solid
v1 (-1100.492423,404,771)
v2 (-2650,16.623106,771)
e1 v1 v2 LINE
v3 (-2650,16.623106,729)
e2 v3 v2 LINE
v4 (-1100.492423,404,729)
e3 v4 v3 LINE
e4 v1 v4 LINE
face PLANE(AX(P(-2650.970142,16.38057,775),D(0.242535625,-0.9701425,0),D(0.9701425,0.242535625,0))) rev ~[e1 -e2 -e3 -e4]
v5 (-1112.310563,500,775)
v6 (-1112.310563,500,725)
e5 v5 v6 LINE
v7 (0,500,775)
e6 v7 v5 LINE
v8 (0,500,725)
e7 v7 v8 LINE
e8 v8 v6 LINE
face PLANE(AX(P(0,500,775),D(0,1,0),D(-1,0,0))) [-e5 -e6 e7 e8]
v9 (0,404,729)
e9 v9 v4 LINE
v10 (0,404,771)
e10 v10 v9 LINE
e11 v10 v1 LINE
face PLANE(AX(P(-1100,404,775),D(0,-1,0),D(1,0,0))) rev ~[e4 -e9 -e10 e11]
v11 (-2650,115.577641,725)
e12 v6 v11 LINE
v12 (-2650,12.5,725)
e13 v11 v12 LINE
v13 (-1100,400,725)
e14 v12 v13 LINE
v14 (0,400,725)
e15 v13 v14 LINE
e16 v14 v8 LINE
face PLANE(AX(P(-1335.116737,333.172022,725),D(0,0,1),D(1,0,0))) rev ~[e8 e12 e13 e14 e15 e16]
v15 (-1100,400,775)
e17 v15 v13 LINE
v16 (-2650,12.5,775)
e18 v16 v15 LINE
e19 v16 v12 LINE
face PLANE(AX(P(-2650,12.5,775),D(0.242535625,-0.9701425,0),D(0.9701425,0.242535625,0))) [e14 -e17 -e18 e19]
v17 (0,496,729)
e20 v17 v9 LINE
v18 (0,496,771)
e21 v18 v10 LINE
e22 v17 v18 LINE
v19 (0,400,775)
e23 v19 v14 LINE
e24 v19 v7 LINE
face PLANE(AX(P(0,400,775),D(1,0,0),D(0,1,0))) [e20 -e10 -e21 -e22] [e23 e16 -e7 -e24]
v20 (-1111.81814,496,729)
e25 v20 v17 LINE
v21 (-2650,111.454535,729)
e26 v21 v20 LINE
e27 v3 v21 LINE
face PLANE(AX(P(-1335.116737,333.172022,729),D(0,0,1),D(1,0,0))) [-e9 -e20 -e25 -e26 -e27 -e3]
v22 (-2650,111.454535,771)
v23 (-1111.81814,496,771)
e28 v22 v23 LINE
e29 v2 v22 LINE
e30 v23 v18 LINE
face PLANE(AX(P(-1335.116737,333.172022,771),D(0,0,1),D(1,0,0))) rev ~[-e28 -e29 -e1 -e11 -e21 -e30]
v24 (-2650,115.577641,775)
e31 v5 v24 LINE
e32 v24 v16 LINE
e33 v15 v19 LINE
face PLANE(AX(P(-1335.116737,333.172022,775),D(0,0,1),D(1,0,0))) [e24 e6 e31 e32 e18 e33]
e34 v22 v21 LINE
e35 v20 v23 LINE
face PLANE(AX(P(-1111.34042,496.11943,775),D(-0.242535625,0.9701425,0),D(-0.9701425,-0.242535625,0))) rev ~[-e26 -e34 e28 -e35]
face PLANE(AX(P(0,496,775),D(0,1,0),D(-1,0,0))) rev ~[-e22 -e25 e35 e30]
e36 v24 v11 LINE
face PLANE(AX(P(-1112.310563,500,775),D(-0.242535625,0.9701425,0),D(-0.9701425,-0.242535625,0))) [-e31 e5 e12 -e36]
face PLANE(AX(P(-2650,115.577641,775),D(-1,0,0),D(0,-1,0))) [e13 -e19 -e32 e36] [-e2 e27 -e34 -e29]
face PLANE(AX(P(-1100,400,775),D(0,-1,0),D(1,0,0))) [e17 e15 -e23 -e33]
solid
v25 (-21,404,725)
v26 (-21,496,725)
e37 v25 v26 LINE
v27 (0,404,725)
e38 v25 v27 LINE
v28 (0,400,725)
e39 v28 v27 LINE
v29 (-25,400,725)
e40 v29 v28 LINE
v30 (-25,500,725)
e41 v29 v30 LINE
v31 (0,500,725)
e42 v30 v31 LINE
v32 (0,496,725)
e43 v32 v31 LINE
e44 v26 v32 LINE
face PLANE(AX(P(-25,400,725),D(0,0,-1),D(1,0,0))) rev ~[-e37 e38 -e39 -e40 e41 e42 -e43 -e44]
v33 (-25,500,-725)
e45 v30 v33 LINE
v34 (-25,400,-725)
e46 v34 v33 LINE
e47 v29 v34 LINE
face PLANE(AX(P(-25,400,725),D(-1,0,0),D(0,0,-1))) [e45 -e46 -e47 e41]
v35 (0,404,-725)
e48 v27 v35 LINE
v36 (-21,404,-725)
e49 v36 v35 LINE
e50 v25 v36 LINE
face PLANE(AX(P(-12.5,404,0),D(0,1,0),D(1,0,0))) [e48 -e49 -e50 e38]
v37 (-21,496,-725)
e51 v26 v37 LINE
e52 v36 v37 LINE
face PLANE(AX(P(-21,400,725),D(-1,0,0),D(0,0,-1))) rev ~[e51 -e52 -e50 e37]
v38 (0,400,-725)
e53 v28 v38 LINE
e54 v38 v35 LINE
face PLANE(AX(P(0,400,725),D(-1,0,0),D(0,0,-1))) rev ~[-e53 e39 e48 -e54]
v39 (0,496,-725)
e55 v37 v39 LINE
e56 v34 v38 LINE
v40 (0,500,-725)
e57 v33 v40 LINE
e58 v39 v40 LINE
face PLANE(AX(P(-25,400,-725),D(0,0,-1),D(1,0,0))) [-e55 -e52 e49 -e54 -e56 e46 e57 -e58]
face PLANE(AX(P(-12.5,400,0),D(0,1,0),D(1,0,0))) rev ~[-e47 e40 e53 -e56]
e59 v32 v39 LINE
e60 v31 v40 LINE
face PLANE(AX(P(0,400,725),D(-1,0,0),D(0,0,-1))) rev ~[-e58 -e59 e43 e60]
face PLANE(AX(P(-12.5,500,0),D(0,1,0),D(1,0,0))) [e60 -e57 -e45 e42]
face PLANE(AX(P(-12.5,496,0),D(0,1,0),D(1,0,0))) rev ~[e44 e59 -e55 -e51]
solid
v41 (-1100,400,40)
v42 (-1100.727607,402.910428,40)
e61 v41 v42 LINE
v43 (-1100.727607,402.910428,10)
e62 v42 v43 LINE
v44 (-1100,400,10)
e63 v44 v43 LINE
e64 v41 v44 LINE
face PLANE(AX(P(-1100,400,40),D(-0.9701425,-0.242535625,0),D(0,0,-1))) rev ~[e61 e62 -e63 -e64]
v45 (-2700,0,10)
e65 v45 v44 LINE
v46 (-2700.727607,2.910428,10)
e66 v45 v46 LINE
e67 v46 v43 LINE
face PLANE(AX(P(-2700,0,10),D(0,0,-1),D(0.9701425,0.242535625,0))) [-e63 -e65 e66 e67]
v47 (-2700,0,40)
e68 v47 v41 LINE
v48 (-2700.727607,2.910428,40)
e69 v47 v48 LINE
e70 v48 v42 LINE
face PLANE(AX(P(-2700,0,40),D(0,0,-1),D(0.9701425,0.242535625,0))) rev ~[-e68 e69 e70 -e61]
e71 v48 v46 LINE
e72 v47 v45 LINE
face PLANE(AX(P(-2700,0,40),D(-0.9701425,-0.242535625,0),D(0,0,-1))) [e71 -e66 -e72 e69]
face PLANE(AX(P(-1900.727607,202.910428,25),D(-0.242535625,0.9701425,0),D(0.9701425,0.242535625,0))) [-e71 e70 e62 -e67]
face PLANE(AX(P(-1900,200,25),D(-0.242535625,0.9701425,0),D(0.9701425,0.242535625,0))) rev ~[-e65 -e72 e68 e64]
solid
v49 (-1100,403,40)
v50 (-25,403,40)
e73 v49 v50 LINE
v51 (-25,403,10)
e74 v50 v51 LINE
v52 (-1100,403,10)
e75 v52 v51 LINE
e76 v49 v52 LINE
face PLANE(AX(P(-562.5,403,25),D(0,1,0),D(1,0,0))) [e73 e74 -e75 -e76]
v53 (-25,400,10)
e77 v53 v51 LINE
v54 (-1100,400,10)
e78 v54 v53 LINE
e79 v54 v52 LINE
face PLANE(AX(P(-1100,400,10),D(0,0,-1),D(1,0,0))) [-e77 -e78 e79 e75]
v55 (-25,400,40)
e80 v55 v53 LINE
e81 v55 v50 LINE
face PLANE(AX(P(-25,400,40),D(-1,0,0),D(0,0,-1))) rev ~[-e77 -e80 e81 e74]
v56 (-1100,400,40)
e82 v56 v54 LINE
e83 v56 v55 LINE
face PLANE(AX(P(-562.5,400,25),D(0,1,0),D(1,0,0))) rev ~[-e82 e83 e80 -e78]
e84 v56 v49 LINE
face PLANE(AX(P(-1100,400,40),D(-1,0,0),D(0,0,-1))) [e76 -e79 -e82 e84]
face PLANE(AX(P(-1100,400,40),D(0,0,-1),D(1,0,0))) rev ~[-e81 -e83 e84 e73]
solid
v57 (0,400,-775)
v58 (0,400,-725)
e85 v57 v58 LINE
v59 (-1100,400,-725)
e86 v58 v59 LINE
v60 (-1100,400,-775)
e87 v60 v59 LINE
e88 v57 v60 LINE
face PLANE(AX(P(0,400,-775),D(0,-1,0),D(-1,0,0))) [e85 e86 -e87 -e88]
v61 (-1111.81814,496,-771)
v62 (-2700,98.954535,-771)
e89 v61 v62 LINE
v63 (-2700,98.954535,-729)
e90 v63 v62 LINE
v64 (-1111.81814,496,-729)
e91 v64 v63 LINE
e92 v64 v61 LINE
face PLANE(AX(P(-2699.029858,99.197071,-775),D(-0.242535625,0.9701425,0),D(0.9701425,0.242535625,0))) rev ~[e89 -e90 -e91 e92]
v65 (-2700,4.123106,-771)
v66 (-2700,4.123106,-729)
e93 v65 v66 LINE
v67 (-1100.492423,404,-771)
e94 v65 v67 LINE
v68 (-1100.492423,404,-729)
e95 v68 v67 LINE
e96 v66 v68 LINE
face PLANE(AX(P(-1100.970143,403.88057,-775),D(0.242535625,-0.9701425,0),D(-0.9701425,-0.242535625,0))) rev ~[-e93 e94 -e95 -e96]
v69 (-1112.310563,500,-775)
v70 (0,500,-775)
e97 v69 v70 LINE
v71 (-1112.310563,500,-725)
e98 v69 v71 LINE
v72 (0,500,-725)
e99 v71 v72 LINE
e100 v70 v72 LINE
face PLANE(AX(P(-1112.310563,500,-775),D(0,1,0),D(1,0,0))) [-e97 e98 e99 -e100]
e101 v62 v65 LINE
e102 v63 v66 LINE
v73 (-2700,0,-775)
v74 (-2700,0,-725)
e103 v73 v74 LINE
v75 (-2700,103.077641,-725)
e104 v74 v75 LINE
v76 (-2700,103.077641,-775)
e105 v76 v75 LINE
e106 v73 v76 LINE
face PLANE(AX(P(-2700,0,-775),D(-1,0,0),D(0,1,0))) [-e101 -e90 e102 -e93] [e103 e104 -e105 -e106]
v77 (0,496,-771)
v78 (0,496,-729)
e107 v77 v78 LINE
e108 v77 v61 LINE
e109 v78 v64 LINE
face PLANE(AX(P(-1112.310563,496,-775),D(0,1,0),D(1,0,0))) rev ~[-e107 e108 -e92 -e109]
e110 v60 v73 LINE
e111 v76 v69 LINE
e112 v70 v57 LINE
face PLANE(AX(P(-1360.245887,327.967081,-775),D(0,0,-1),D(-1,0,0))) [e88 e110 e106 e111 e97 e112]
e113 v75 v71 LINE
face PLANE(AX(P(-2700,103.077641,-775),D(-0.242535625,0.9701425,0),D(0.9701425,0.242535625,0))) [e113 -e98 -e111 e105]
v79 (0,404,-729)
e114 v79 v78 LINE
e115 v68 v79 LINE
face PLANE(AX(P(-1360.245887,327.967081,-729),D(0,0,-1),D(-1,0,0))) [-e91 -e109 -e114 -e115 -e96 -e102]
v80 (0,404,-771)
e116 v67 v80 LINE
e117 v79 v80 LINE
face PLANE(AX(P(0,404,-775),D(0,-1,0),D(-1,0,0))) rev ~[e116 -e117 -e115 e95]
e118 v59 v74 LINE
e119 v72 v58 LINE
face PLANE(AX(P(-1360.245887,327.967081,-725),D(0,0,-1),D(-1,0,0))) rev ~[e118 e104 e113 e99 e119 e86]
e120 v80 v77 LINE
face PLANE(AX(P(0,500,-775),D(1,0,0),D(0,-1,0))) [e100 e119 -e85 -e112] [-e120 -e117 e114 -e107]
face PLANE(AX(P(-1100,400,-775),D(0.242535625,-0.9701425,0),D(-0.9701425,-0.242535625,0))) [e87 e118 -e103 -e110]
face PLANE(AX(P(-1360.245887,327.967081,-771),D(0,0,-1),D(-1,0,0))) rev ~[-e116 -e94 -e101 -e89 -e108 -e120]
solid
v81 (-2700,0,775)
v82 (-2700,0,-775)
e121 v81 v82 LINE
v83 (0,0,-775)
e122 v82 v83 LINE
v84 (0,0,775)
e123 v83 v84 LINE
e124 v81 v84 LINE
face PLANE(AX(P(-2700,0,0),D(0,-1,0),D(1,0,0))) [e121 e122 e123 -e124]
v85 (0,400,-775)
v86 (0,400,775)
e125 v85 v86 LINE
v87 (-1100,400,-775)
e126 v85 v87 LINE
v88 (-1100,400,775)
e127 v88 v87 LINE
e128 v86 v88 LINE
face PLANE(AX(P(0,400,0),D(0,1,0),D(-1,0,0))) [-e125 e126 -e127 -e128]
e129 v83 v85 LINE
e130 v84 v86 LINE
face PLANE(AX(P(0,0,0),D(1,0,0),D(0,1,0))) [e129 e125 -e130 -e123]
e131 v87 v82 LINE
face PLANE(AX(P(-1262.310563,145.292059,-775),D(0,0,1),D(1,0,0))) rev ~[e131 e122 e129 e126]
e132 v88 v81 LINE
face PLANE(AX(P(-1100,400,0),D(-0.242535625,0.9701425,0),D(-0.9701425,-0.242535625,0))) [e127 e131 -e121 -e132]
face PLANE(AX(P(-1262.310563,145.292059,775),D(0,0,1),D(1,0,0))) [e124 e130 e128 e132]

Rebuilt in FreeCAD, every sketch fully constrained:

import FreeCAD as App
import Part
import Sketcher

V = App.Vector
Q = App.Units.Quantity


def faces_at(feature, points):
    """Names of the faces that lie closest to the given points."""
    faces = feature.Shape.Faces
    near = lambda p: min(range(len(faces)), key=lambda i: faces[i].distToShape(Part.Vertex(*p))[0])
    return sorted({f"Face{near(p) + 1}" for p in points})


def add_polygon(sketch, points):
    """Adds a closed chain of lines whose ends are joined by coincident constraints."""
    first, n = sketch.GeometryCount, len(points)
    for a, b in zip(points, points[1:] + points[:1]):
        sketch.addGeometry(Part.LineSegment(App.Vector(*a, 0), App.Vector(*b, 0)), False)
    for i in range(n):
        sketch.addConstraint(Sketcher.Constraint("Coincident", first + i, 2, first + (i + 1) % n, 1))

doc = App.newDocument("Part")
body = doc.addObject("PartDesign::Body", "Body")

# Sketch on XY plane
sketch1 = body.newObject("Sketcher::SketchObject", "Sketch")
sketch1.AttachmentSupport = (doc.getObject("XY_Plane"), [""])
sketch1.MapMode = "FlatFace"
add_polygon(sketch1, [(-2700, 0), (0, 0), (0, 400), (-1100, 400)])  # lines 0-3
sketch1.addConstraint([
    Sketcher.Constraint("Horizontal", 0),
    Sketcher.Constraint("Vertical", 1),
    Sketcher.Constraint("Horizontal", 2),
    Sketcher.Constraint("Coincident", 0, 2, -1, 1),
    Sketcher.Constraint("DistanceX", 0, 1, 0, 2, Q("2700 mm")),
    Sketcher.Constraint("DistanceX", 2, 2, 2, 1, Q("1100 mm")),
    Sketcher.Constraint("DistanceY", 1, 1, 1, 2, Q("400 mm")),
])
pad1 = body.newObject("PartDesign::Pad", "Pad")
pad1.Profile = sketch1
pad1.Type = "TwoLengths"
pad1.Length = 775
pad1.Length2 = 775
body2 = doc.addObject("PartDesign::Body", "Body001")

# Sketch on XY plane
sketch2 = body2.newObject("Sketcher::SketchObject", "Sketch001")
sketch2.AttachmentSupport = (doc.getObject("XY_Plane001"), [""])
sketch2.MapMode = "FlatFace"
sketch2.AttachmentOffset = App.Placement(V(0, 0, 775), App.Rotation())
add_polygon(sketch2, [(-2650, 115.577641), (-2650, 12.5), (-1100, 400), (0, 400), (0, 500), (-1112.310563, 500)])  # lines 0-5
sketch2.addConstraint([
    Sketcher.Constraint("Vertical", 0),
    Sketcher.Constraint("Horizontal", 2),
    Sketcher.Constraint("Vertical", 3),
    Sketcher.Constraint("Horizontal", 4),
    Sketcher.Constraint("PointOnObject", 2, 2, -2),
    Sketcher.Constraint("Parallel", 1, 5),
    Sketcher.Constraint("DistanceX", 2, 1, 2, 2, Q("1100 mm")),
    Sketcher.Constraint("DistanceY", 3, 1, 3, 2, Q("100 mm")),
    Sketcher.Constraint("DistanceX", 0, 2, -1, 1, Q("2650 mm")),
    Sketcher.Constraint("DistanceY", -1, 1, 1, 2, Q("400 mm")),
    Sketcher.Constraint("DistanceY", -1, 1, 0, 2, Q("12.5 mm")),
    Sketcher.Constraint("DistanceY", 0, 2, 0, 1, Q("103.077641 mm")),
])
pad2 = body2.newObject("PartDesign::Pad", "Pad001")
pad2.Profile = sketch2
pad2.Length = 50
pad2.Reversed = True
doc.recompute()

thickness = body2.newObject("PartDesign::Thickness", "Thickness")
thickness.Base = (pad2, faces_at(pad2, [(-2650, 64.039, 750), (0, 450, 750)]))
thickness.Value = 4
thickness.Reversed = True
thickness.Join = "Intersection"
body3 = doc.addObject("PartDesign::Body", "Body002")

# Sketch on XY plane
sketch3 = body3.newObject("Sketcher::SketchObject", "Sketch002")
sketch3.AttachmentSupport = (doc.getObject("XY_Plane002"), [""])
sketch3.MapMode = "FlatFace"
sketch3.AttachmentOffset = App.Placement(V(0, 0, -775), App.Rotation())
add_polygon(sketch3, [(-1100, 400), (-2700, 0), (-2700, 103.077641), (-1112.310563, 500), (0, 500), (0, 400)])  # lines 0-5
sketch3.addConstraint([
    Sketcher.Constraint("Vertical", 1),
    Sketcher.Constraint("Horizontal", 3),
    Sketcher.Constraint("Vertical", 4),
    Sketcher.Constraint("Horizontal", 5),
    Sketcher.Constraint("PointOnObject", 0, 2, -1),
    Sketcher.Constraint("PointOnObject", 3, 2, -2),
    Sketcher.Constraint("Parallel", 0, 2),
    Sketcher.Constraint("DistanceX", 5, 2, 5, 1, Q("1100 mm")),
    Sketcher.Constraint("DistanceY", 4, 2, 4, 1, Q("100 mm")),
    Sketcher.Constraint("DistanceX", 0, 2, -1, 1, Q("2700 mm")),
    Sketcher.Constraint("DistanceY", -1, 1, 2, 2, Q("500 mm")),
    Sketcher.Constraint("DistanceY", 1, 1, 1, 2, Q("103.077641 mm")),
])
pad3 = body3.newObject("PartDesign::Pad", "Pad002")
pad3.Profile = sketch3
pad3.Length = 50
doc.recompute()

thickness2 = body3.newObject("PartDesign::Thickness", "Thickness001")
thickness2.Base = (pad3, faces_at(pad3, [(0, 450, -750), (-2700, 51.539, -750)]))
thickness2.Value = 4
thickness2.Reversed = True
thickness2.Join = "Intersection"
body4 = doc.addObject("PartDesign::Body", "Body003")

# Sketch on XZ plane
sketch4 = body4.newObject("Sketcher::SketchObject", "Sketch003")
sketch4.AttachmentSupport = (doc.getObject("XZ_Plane003"), [""])
sketch4.MapMode = "FlatFace"
sketch4.AttachmentOffset = App.Placement(V(0, 0, -400), App.Rotation())
add_polygon(sketch4, [(-25, -725), (-25, 725), (0, 725), (0, -725)])  # lines 0-3
sketch4.addConstraint([
    Sketcher.Constraint("Vertical", 0),
    Sketcher.Constraint("Horizontal", 1),
    Sketcher.Constraint("Vertical", 2),
    Sketcher.Constraint("Horizontal", 3),
    Sketcher.Constraint("Symmetric", 1, 2, 2, 2, -1, 1),
    Sketcher.Constraint("DistanceX", 1, 1, 1, 2, Q("25 mm")),
    Sketcher.Constraint("DistanceY", 0, 1, 0, 2, Q("1450 mm")),
])
pad4 = body4.newObject("PartDesign::Pad", "Pad003")
pad4.Profile = sketch4
pad4.Length = 100
pad4.Reversed = True
doc.recompute()

thickness3 = body4.newObject("PartDesign::Thickness", "Thickness002")
thickness3.Base = (pad4, faces_at(pad4, [(-12.5, 450, -725), (0, 450, 0), (-12.5, 450, 725)]))
thickness3.Value = 4
thickness3.Reversed = True
thickness3.Join = "Intersection"
body5 = doc.addObject("PartDesign::Body", "Body004")

# Sketch on XZ plane
sketch5 = body5.newObject("Sketcher::SketchObject", "Sketch004")
sketch5.AttachmentSupport = (doc.getObject("XZ_Plane004"), [""])
sketch5.MapMode = "FlatFace"
sketch5.AttachmentOffset = App.Placement(V(0, 0, -400), App.Rotation())
add_polygon(sketch5, [(-1100, 10), (-1100, 40), (-25, 40), (-25, 10)])  # lines 0-3
sketch5.addConstraint([
    Sketcher.Constraint("Vertical", 0),
    Sketcher.Constraint("Horizontal", 1),
    Sketcher.Constraint("Vertical", 2),
    Sketcher.Constraint("Horizontal", 3),
    Sketcher.Constraint("DistanceX", 1, 1, 1, 2, Q("1075 mm")),
    Sketcher.Constraint("DistanceY", 0, 1, 0, 2, Q("30 mm")),
    Sketcher.Constraint("DistanceX", 0, 2, -1, 1, Q("1100 mm")),
    Sketcher.Constraint("DistanceY", -1, 1, 0, 2, Q("40 mm")),
])
pad5 = body5.newObject("PartDesign::Pad", "Pad004")
pad5.Profile = sketch5
pad5.Length = 3
pad5.Reversed = True
body6 = doc.addObject("PartDesign::Body", "Body005")

# Sketch on an angled plane
sketch6 = body6.newObject("Sketcher::SketchObject", "Sketch005")
sketch6.Placement = App.Placement(V(-158.823529, 635.294118, 0), App.Rotation(V(0.9701425, 0.242535625, 0), V(0, 0, -1), V(-0.242535625, 0.9701425, 0), "ZXY"))
add_polygon(sketch6, [(-2619.38475, -10), (-2619.38475, -40), (-970.1425, -40), (-970.1425, -10)])  # lines 0-3
sketch6.addConstraint([
    Sketcher.Constraint("Vertical", 0),
    Sketcher.Constraint("Horizontal", 1),
    Sketcher.Constraint("Vertical", 2),
    Sketcher.Constraint("Horizontal", 3),
    Sketcher.Constraint("DistanceY", 0, 2, 0, 1, Q("30 mm")),
    Sketcher.Constraint("DistanceY", 0, 2, -1, 1, Q("40 mm")),
    Sketcher.Constraint("DistanceX", 1, 1, 1, 2, Q("1649.24225 mm")),
    Sketcher.Constraint("DistanceX", 1, 2, -1, 1, Q("970.1425 mm")),
])
pad6 = body6.newObject("PartDesign::Pad", "Pad005")
pad6.Profile = sketch6
pad6.Length = 3

doc.recompute()
